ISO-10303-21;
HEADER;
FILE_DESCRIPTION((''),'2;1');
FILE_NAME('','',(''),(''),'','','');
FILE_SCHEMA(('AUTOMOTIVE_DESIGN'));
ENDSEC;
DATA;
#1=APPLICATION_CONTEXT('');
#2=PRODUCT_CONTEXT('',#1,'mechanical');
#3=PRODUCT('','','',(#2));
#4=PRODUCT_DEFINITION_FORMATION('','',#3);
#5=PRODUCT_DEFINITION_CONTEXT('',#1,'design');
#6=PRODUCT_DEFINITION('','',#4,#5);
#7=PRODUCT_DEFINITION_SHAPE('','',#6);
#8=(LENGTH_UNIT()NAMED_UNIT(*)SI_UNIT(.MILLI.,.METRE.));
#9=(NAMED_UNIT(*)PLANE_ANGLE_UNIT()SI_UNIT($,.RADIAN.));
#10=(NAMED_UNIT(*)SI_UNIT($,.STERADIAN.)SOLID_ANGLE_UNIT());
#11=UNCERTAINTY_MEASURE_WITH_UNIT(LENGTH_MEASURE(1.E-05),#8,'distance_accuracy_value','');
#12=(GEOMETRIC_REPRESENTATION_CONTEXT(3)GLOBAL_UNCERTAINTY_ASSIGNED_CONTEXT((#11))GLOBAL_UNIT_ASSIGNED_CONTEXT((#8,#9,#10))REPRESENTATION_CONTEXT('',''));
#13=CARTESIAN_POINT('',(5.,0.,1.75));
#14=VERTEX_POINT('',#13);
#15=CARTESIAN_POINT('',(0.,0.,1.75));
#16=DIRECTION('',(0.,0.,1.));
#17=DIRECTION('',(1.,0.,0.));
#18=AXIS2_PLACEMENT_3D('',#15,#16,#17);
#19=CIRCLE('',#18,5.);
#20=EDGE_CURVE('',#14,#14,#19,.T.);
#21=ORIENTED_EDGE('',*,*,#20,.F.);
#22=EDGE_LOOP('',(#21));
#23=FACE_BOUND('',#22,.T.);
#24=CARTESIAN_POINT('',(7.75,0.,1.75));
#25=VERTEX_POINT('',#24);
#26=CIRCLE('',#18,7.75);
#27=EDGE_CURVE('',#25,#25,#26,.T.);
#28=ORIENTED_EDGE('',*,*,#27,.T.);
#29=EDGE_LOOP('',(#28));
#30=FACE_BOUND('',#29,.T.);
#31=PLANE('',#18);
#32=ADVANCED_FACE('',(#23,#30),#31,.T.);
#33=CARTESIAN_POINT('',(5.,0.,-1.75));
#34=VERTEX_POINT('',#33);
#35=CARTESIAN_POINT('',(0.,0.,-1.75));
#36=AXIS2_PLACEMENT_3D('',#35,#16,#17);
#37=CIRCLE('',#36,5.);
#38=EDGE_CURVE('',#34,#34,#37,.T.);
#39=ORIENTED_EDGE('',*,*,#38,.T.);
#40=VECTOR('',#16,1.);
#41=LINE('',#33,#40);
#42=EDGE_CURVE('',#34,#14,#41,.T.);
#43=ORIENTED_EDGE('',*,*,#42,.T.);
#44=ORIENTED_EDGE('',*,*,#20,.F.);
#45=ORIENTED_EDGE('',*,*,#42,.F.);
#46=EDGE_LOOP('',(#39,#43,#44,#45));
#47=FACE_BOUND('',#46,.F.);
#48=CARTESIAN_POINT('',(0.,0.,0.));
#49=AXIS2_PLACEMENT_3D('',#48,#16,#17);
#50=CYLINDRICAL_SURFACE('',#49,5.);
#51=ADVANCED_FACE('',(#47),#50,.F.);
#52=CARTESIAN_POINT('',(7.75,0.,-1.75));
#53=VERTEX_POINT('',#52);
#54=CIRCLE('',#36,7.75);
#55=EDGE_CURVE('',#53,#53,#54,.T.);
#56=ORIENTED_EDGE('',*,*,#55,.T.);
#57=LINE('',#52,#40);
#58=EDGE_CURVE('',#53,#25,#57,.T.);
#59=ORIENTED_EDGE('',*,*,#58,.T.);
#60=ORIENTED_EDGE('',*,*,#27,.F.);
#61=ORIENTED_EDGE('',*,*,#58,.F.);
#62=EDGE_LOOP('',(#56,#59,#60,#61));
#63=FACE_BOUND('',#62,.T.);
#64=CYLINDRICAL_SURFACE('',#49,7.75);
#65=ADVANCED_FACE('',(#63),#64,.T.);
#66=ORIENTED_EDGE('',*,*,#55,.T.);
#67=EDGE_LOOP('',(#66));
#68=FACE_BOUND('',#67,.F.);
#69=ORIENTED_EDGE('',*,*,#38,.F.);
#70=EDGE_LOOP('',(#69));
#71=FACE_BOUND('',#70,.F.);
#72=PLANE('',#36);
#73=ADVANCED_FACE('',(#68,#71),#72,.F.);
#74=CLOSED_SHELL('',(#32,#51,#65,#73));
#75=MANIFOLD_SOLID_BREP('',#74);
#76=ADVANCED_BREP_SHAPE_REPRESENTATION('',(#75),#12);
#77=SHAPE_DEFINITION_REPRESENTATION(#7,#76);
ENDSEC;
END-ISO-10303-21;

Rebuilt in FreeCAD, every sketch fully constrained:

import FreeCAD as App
import Part
import Sketcher

doc = App.newDocument("Part")
body = doc.addObject("PartDesign::Body", "Body")

# Sketch on XY plane
sketch1 = doc.addObject("Sketcher::SketchObject", "Sketch")
body.addObject(sketch1)
sketch1.AttachmentSupport = (doc.XY_Plane, [""])
sketch1.MapMode = "FlatFace"
sketch1.addGeometry(Part.Circle(App.Vector(0, 0, 0), App.Vector(0, 0, 1), 7.75), False)
sketch1.addConstraint(Sketcher.Constraint("Coincident", 0, 3, -1, 1))
sketch1.addConstraint(Sketcher.Constraint("Diameter", 0, 15.5))
pad1 = doc.addObject("PartDesign::Pad", "Pad")
body.addObject(pad1)
pad1.Profile = sketch1
pad1.Length = 3.5
pad1.Midplane = True

# Sketch on XY plane
sketch2 = doc.addObject("Sketcher::SketchObject", "Sketch001")
body.addObject(sketch2)
sketch2.AttachmentSupport = (doc.XY_Plane, [""])
sketch2.MapMode = "FlatFace"
sketch2.addGeometry(Part.Circle(App.Vector(0, 0, 0), App.Vector(0, 0, 1), 5), False)
sketch2.addConstraint(Sketcher.Constraint("Coincident", 0, 3, -1, 1))
sketch2.addConstraint(Sketcher.Constraint("Diameter", 0, 10.0))
pocket1 = doc.addObject("PartDesign::Pocket", "Pocket")
body.addObject(pocket1)
pocket1.Profile = sketch2
pocket1.Length = 3.5
pocket1.Midplane = True

doc.recompute()
